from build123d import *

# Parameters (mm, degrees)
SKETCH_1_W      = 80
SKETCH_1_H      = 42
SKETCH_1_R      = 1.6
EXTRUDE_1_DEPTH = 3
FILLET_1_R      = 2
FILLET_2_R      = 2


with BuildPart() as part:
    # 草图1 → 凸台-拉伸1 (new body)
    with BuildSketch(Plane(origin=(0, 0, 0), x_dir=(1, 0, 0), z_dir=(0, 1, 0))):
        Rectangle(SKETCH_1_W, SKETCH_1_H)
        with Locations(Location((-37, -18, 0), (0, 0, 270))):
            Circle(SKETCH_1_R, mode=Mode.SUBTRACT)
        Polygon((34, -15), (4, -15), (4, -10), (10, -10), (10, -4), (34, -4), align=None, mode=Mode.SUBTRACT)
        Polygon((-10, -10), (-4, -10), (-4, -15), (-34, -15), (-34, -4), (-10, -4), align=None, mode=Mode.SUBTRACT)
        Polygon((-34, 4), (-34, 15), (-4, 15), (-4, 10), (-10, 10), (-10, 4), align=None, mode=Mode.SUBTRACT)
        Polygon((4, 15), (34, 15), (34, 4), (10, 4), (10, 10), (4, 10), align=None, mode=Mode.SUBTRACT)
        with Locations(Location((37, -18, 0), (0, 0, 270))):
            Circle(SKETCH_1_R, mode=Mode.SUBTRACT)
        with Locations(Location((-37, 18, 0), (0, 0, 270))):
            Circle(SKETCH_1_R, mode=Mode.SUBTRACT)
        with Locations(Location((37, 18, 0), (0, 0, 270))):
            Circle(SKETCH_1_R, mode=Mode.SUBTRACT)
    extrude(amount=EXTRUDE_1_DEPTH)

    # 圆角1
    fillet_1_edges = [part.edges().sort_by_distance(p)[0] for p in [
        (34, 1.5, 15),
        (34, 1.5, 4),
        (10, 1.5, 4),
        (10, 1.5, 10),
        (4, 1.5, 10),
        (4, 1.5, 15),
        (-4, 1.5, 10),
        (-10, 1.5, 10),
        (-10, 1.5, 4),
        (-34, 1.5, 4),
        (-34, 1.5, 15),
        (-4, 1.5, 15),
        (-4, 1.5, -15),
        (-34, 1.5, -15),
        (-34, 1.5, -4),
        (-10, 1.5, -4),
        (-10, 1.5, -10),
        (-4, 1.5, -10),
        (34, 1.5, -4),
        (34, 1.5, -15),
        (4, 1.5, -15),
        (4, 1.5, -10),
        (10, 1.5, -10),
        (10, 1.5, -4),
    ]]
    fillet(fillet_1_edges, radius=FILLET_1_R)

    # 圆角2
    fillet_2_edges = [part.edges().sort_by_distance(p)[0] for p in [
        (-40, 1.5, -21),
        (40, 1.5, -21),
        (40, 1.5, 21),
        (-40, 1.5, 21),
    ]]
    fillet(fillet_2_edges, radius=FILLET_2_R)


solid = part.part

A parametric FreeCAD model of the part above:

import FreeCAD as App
import Part
import Sketcher
Q = App.Units.Quantity


def edges_at(feature, points):
    """Names of the edges that pass closest to the given points."""
    edges = feature.Shape.Edges
    near = lambda p: min(range(len(edges)), key=lambda i: edges[i].distToShape(Part.Vertex(*p))[0])
    return sorted({f"Edge{near(p) + 1}" for p in points})


def add_polygon(sketch, points):
    """Adds a closed chain of lines whose ends are joined by coincident constraints."""
    first, n = sketch.GeometryCount, len(points)
    for a, b in zip(points, points[1:] + points[:1]):
        sketch.addGeometry(Part.LineSegment(App.Vector(*a, 0), App.Vector(*b, 0)), False)
    for i in range(n):
        sketch.addConstraint(Sketcher.Constraint("Coincident", first + i, 2, first + (i + 1) % n, 1))

doc = App.newDocument("Part")
body = doc.addObject("PartDesign::Body", "Body")

# Sketch on XZ plane
sketch1 = body.newObject("Sketcher::SketchObject", "Sketch")
sketch1.AttachmentSupport = (doc.getObject("XZ_Plane"), [""])
sketch1.MapMode = "FlatFace"
add_polygon(sketch1, [(-40, -21), (-40, 21), (40, 21), (40, -21)])  # lines 0-3
sketch1.addGeometry(Part.Circle(App.Vector(-37, 18, 0), App.Vector(0, 0, 1), 1.6), False)  # 4
add_polygon(sketch1, [(-10, 4), (-10, 10), (-4, 10), (-4, 15), (-34, 15), (-34, 4)])  # lines 5-10
sketch1.addGeometry(Part.Circle(App.Vector(37, 18, 0), App.Vector(0, 0, 1), 1.6), False)  # 11
add_polygon(sketch1, [(34, 4), (34, 15), (4, 15), (4, 10), (10, 10), (10, 4)])  # lines 12-17
add_polygon(sketch1, [(-10, -4), (-34, -4), (-34, -15), (-4, -15), (-4, -10), (-10, -10)])  # lines 18-23
sketch1.addGeometry(Part.Circle(App.Vector(-37, -18, 0), App.Vector(0, 0, 1), 1.6), False)  # 24
add_polygon(sketch1, [(4, -10), (4, -15), (34, -15), (34, -4), (10, -4), (10, -10)])  # lines 25-30
sketch1.addGeometry(Part.Circle(App.Vector(37, -18, 0), App.Vector(0, 0, 1), 1.6), False)  # 31
sketch1.addConstraint([
    Sketcher.Constraint("Vertical", 0),
    Sketcher.Constraint("Horizontal", 1),
    Sketcher.Constraint("Vertical", 2),
    Sketcher.Constraint("Horizontal", 3),
    Sketcher.Constraint("Vertical", 5),
    Sketcher.Constraint("Horizontal", 6),
    Sketcher.Constraint("Vertical", 7),
    Sketcher.Constraint("Horizontal", 8),
    Sketcher.Constraint("Vertical", 9),
    Sketcher.Constraint("Horizontal", 10),
    Sketcher.Constraint("Vertical", 12),
    Sketcher.Constraint("Horizontal", 13),
    Sketcher.Constraint("Vertical", 14),
    Sketcher.Constraint("Horizontal", 15),
    Sketcher.Constraint("Vertical", 16),
    Sketcher.Constraint("Horizontal", 17),
    Sketcher.Constraint("Horizontal", 18),
    Sketcher.Constraint("Vertical", 19),
    Sketcher.Constraint("Horizontal", 20),
    Sketcher.Constraint("Vertical", 21),
    Sketcher.Constraint("Horizontal", 22),
    Sketcher.Constraint("Vertical", 23),
    Sketcher.Constraint("Vertical", 25),
    Sketcher.Constraint("Horizontal", 26),
    Sketcher.Constraint("Vertical", 27),
    Sketcher.Constraint("Horizontal", 28),
    Sketcher.Constraint("Vertical", 29),
    Sketcher.Constraint("Horizontal", 30),
    Sketcher.Constraint("Equal", 4, 11),
    Sketcher.Constraint("Equal", 11, 24),
    Sketcher.Constraint("Equal", 24, 31),
    Sketcher.Constraint("Symmetric", 11, 3, 24, 3, -1, 1),
    Sketcher.Constraint("Symmetric", 4, 3, 31, 3, -1, 1),
    Sketcher.Constraint("Symmetric", 0, 2, 2, 2, -1, 1),
    Sketcher.Constraint("Symmetric", 17, 2, 18, 2, -1, 1),
    Sketcher.Constraint("Symmetric", 13, 2, 20, 2, -1, 1),
    Sketcher.Constraint("Symmetric", 15, 2, 22, 2, -1, 1),
    Sketcher.Constraint("Symmetric", 7, 2, 25, 2, -1, 1),
    Sketcher.Constraint("Symmetric", 9, 2, 27, 2, -1, 1),
    Sketcher.Constraint("Symmetric", 5, 2, 29, 2, -1, 1),
    Sketcher.Constraint("Symmetric", 4, 3, 11, 3, -2),
    Sketcher.Constraint("Symmetric", 8, 2, 12, 2, -2),
    Sketcher.Constraint("Symmetric", 6, 2, 14, 2, -2),
    Sketcher.Constraint("Symmetric", 10, 2, 16, 2, -2),
    Sketcher.Constraint("Equal", 30, 5),
    Sketcher.Constraint("Diameter", 4, Q("3.2 mm")),
    Sketcher.Constraint("DistanceX", 1, 1, 1, 2, Q("80 mm")),
    Sketcher.Constraint("DistanceX", 6, 1, 6, 2, Q("6 mm")),
    Sketcher.Constraint("DistanceX", 8, 2, 8, 1, Q("30 mm")),
    Sketcher.Constraint("DistanceY", 0, 1, 0, 2, Q("42 mm")),
    Sketcher.Constraint("DistanceY", 7, 1, 7, 2, Q("5 mm")),
    Sketcher.Constraint("DistanceX", 4, 3, -1, 1, Q("37 mm")),
    Sketcher.Constraint("DistanceY", -1, 1, 4, 3, Q("18 mm")),
    Sketcher.Constraint("DistanceX", 5, 2, -1, 1, Q("10 mm")),
    Sketcher.Constraint("DistanceY", -1, 1, 5, 2, Q("10 mm")),
])
pad1 = body.newObject("PartDesign::Pad", "Pad")
pad1.Profile = sketch1
pad1.Length = 3
pad1.Reversed = True
doc.recompute()

fillet = body.newObject("PartDesign::Fillet", "Fillet")
fillet.Base = (pad1, edges_at(pad1, [
    (34, 1.5, 15),
    (34, 1.5, 4),
    (10, 1.5, 4),
    (10, 1.5, 10),
    (4, 1.5, 10),
    (4, 1.5, 15),
    (-4, 1.5, 10),
    (-10, 1.5, 10),
    (-10, 1.5, 4),
    (-34, 1.5, 4),
    (-34, 1.5, 15),
    (-4, 1.5, 15),
    (-4, 1.5, -15),
    (-34, 1.5, -15),
    (-34, 1.5, -4),
    (-10, 1.5, -4),
    (-10, 1.5, -10),
    (-4, 1.5, -10),
    (34, 1.5, -4),
    (34, 1.5, -15),
    (4, 1.5, -15),
    (4, 1.5, -10),
    (10, 1.5, -10),
    (10, 1.5, -4),
]))
fillet.Radius = 2
doc.recompute()

fillet2 = body.newObject("PartDesign::Fillet", "Fillet001")
fillet2.Base = (fillet, edges_at(fillet, [
    (-40, 1.5, -21),
    (40, 1.5, -21),
    (40, 1.5, 21),
    (-40, 1.5, 21),
]))
fillet2.Radius = 2

doc.recompute()
